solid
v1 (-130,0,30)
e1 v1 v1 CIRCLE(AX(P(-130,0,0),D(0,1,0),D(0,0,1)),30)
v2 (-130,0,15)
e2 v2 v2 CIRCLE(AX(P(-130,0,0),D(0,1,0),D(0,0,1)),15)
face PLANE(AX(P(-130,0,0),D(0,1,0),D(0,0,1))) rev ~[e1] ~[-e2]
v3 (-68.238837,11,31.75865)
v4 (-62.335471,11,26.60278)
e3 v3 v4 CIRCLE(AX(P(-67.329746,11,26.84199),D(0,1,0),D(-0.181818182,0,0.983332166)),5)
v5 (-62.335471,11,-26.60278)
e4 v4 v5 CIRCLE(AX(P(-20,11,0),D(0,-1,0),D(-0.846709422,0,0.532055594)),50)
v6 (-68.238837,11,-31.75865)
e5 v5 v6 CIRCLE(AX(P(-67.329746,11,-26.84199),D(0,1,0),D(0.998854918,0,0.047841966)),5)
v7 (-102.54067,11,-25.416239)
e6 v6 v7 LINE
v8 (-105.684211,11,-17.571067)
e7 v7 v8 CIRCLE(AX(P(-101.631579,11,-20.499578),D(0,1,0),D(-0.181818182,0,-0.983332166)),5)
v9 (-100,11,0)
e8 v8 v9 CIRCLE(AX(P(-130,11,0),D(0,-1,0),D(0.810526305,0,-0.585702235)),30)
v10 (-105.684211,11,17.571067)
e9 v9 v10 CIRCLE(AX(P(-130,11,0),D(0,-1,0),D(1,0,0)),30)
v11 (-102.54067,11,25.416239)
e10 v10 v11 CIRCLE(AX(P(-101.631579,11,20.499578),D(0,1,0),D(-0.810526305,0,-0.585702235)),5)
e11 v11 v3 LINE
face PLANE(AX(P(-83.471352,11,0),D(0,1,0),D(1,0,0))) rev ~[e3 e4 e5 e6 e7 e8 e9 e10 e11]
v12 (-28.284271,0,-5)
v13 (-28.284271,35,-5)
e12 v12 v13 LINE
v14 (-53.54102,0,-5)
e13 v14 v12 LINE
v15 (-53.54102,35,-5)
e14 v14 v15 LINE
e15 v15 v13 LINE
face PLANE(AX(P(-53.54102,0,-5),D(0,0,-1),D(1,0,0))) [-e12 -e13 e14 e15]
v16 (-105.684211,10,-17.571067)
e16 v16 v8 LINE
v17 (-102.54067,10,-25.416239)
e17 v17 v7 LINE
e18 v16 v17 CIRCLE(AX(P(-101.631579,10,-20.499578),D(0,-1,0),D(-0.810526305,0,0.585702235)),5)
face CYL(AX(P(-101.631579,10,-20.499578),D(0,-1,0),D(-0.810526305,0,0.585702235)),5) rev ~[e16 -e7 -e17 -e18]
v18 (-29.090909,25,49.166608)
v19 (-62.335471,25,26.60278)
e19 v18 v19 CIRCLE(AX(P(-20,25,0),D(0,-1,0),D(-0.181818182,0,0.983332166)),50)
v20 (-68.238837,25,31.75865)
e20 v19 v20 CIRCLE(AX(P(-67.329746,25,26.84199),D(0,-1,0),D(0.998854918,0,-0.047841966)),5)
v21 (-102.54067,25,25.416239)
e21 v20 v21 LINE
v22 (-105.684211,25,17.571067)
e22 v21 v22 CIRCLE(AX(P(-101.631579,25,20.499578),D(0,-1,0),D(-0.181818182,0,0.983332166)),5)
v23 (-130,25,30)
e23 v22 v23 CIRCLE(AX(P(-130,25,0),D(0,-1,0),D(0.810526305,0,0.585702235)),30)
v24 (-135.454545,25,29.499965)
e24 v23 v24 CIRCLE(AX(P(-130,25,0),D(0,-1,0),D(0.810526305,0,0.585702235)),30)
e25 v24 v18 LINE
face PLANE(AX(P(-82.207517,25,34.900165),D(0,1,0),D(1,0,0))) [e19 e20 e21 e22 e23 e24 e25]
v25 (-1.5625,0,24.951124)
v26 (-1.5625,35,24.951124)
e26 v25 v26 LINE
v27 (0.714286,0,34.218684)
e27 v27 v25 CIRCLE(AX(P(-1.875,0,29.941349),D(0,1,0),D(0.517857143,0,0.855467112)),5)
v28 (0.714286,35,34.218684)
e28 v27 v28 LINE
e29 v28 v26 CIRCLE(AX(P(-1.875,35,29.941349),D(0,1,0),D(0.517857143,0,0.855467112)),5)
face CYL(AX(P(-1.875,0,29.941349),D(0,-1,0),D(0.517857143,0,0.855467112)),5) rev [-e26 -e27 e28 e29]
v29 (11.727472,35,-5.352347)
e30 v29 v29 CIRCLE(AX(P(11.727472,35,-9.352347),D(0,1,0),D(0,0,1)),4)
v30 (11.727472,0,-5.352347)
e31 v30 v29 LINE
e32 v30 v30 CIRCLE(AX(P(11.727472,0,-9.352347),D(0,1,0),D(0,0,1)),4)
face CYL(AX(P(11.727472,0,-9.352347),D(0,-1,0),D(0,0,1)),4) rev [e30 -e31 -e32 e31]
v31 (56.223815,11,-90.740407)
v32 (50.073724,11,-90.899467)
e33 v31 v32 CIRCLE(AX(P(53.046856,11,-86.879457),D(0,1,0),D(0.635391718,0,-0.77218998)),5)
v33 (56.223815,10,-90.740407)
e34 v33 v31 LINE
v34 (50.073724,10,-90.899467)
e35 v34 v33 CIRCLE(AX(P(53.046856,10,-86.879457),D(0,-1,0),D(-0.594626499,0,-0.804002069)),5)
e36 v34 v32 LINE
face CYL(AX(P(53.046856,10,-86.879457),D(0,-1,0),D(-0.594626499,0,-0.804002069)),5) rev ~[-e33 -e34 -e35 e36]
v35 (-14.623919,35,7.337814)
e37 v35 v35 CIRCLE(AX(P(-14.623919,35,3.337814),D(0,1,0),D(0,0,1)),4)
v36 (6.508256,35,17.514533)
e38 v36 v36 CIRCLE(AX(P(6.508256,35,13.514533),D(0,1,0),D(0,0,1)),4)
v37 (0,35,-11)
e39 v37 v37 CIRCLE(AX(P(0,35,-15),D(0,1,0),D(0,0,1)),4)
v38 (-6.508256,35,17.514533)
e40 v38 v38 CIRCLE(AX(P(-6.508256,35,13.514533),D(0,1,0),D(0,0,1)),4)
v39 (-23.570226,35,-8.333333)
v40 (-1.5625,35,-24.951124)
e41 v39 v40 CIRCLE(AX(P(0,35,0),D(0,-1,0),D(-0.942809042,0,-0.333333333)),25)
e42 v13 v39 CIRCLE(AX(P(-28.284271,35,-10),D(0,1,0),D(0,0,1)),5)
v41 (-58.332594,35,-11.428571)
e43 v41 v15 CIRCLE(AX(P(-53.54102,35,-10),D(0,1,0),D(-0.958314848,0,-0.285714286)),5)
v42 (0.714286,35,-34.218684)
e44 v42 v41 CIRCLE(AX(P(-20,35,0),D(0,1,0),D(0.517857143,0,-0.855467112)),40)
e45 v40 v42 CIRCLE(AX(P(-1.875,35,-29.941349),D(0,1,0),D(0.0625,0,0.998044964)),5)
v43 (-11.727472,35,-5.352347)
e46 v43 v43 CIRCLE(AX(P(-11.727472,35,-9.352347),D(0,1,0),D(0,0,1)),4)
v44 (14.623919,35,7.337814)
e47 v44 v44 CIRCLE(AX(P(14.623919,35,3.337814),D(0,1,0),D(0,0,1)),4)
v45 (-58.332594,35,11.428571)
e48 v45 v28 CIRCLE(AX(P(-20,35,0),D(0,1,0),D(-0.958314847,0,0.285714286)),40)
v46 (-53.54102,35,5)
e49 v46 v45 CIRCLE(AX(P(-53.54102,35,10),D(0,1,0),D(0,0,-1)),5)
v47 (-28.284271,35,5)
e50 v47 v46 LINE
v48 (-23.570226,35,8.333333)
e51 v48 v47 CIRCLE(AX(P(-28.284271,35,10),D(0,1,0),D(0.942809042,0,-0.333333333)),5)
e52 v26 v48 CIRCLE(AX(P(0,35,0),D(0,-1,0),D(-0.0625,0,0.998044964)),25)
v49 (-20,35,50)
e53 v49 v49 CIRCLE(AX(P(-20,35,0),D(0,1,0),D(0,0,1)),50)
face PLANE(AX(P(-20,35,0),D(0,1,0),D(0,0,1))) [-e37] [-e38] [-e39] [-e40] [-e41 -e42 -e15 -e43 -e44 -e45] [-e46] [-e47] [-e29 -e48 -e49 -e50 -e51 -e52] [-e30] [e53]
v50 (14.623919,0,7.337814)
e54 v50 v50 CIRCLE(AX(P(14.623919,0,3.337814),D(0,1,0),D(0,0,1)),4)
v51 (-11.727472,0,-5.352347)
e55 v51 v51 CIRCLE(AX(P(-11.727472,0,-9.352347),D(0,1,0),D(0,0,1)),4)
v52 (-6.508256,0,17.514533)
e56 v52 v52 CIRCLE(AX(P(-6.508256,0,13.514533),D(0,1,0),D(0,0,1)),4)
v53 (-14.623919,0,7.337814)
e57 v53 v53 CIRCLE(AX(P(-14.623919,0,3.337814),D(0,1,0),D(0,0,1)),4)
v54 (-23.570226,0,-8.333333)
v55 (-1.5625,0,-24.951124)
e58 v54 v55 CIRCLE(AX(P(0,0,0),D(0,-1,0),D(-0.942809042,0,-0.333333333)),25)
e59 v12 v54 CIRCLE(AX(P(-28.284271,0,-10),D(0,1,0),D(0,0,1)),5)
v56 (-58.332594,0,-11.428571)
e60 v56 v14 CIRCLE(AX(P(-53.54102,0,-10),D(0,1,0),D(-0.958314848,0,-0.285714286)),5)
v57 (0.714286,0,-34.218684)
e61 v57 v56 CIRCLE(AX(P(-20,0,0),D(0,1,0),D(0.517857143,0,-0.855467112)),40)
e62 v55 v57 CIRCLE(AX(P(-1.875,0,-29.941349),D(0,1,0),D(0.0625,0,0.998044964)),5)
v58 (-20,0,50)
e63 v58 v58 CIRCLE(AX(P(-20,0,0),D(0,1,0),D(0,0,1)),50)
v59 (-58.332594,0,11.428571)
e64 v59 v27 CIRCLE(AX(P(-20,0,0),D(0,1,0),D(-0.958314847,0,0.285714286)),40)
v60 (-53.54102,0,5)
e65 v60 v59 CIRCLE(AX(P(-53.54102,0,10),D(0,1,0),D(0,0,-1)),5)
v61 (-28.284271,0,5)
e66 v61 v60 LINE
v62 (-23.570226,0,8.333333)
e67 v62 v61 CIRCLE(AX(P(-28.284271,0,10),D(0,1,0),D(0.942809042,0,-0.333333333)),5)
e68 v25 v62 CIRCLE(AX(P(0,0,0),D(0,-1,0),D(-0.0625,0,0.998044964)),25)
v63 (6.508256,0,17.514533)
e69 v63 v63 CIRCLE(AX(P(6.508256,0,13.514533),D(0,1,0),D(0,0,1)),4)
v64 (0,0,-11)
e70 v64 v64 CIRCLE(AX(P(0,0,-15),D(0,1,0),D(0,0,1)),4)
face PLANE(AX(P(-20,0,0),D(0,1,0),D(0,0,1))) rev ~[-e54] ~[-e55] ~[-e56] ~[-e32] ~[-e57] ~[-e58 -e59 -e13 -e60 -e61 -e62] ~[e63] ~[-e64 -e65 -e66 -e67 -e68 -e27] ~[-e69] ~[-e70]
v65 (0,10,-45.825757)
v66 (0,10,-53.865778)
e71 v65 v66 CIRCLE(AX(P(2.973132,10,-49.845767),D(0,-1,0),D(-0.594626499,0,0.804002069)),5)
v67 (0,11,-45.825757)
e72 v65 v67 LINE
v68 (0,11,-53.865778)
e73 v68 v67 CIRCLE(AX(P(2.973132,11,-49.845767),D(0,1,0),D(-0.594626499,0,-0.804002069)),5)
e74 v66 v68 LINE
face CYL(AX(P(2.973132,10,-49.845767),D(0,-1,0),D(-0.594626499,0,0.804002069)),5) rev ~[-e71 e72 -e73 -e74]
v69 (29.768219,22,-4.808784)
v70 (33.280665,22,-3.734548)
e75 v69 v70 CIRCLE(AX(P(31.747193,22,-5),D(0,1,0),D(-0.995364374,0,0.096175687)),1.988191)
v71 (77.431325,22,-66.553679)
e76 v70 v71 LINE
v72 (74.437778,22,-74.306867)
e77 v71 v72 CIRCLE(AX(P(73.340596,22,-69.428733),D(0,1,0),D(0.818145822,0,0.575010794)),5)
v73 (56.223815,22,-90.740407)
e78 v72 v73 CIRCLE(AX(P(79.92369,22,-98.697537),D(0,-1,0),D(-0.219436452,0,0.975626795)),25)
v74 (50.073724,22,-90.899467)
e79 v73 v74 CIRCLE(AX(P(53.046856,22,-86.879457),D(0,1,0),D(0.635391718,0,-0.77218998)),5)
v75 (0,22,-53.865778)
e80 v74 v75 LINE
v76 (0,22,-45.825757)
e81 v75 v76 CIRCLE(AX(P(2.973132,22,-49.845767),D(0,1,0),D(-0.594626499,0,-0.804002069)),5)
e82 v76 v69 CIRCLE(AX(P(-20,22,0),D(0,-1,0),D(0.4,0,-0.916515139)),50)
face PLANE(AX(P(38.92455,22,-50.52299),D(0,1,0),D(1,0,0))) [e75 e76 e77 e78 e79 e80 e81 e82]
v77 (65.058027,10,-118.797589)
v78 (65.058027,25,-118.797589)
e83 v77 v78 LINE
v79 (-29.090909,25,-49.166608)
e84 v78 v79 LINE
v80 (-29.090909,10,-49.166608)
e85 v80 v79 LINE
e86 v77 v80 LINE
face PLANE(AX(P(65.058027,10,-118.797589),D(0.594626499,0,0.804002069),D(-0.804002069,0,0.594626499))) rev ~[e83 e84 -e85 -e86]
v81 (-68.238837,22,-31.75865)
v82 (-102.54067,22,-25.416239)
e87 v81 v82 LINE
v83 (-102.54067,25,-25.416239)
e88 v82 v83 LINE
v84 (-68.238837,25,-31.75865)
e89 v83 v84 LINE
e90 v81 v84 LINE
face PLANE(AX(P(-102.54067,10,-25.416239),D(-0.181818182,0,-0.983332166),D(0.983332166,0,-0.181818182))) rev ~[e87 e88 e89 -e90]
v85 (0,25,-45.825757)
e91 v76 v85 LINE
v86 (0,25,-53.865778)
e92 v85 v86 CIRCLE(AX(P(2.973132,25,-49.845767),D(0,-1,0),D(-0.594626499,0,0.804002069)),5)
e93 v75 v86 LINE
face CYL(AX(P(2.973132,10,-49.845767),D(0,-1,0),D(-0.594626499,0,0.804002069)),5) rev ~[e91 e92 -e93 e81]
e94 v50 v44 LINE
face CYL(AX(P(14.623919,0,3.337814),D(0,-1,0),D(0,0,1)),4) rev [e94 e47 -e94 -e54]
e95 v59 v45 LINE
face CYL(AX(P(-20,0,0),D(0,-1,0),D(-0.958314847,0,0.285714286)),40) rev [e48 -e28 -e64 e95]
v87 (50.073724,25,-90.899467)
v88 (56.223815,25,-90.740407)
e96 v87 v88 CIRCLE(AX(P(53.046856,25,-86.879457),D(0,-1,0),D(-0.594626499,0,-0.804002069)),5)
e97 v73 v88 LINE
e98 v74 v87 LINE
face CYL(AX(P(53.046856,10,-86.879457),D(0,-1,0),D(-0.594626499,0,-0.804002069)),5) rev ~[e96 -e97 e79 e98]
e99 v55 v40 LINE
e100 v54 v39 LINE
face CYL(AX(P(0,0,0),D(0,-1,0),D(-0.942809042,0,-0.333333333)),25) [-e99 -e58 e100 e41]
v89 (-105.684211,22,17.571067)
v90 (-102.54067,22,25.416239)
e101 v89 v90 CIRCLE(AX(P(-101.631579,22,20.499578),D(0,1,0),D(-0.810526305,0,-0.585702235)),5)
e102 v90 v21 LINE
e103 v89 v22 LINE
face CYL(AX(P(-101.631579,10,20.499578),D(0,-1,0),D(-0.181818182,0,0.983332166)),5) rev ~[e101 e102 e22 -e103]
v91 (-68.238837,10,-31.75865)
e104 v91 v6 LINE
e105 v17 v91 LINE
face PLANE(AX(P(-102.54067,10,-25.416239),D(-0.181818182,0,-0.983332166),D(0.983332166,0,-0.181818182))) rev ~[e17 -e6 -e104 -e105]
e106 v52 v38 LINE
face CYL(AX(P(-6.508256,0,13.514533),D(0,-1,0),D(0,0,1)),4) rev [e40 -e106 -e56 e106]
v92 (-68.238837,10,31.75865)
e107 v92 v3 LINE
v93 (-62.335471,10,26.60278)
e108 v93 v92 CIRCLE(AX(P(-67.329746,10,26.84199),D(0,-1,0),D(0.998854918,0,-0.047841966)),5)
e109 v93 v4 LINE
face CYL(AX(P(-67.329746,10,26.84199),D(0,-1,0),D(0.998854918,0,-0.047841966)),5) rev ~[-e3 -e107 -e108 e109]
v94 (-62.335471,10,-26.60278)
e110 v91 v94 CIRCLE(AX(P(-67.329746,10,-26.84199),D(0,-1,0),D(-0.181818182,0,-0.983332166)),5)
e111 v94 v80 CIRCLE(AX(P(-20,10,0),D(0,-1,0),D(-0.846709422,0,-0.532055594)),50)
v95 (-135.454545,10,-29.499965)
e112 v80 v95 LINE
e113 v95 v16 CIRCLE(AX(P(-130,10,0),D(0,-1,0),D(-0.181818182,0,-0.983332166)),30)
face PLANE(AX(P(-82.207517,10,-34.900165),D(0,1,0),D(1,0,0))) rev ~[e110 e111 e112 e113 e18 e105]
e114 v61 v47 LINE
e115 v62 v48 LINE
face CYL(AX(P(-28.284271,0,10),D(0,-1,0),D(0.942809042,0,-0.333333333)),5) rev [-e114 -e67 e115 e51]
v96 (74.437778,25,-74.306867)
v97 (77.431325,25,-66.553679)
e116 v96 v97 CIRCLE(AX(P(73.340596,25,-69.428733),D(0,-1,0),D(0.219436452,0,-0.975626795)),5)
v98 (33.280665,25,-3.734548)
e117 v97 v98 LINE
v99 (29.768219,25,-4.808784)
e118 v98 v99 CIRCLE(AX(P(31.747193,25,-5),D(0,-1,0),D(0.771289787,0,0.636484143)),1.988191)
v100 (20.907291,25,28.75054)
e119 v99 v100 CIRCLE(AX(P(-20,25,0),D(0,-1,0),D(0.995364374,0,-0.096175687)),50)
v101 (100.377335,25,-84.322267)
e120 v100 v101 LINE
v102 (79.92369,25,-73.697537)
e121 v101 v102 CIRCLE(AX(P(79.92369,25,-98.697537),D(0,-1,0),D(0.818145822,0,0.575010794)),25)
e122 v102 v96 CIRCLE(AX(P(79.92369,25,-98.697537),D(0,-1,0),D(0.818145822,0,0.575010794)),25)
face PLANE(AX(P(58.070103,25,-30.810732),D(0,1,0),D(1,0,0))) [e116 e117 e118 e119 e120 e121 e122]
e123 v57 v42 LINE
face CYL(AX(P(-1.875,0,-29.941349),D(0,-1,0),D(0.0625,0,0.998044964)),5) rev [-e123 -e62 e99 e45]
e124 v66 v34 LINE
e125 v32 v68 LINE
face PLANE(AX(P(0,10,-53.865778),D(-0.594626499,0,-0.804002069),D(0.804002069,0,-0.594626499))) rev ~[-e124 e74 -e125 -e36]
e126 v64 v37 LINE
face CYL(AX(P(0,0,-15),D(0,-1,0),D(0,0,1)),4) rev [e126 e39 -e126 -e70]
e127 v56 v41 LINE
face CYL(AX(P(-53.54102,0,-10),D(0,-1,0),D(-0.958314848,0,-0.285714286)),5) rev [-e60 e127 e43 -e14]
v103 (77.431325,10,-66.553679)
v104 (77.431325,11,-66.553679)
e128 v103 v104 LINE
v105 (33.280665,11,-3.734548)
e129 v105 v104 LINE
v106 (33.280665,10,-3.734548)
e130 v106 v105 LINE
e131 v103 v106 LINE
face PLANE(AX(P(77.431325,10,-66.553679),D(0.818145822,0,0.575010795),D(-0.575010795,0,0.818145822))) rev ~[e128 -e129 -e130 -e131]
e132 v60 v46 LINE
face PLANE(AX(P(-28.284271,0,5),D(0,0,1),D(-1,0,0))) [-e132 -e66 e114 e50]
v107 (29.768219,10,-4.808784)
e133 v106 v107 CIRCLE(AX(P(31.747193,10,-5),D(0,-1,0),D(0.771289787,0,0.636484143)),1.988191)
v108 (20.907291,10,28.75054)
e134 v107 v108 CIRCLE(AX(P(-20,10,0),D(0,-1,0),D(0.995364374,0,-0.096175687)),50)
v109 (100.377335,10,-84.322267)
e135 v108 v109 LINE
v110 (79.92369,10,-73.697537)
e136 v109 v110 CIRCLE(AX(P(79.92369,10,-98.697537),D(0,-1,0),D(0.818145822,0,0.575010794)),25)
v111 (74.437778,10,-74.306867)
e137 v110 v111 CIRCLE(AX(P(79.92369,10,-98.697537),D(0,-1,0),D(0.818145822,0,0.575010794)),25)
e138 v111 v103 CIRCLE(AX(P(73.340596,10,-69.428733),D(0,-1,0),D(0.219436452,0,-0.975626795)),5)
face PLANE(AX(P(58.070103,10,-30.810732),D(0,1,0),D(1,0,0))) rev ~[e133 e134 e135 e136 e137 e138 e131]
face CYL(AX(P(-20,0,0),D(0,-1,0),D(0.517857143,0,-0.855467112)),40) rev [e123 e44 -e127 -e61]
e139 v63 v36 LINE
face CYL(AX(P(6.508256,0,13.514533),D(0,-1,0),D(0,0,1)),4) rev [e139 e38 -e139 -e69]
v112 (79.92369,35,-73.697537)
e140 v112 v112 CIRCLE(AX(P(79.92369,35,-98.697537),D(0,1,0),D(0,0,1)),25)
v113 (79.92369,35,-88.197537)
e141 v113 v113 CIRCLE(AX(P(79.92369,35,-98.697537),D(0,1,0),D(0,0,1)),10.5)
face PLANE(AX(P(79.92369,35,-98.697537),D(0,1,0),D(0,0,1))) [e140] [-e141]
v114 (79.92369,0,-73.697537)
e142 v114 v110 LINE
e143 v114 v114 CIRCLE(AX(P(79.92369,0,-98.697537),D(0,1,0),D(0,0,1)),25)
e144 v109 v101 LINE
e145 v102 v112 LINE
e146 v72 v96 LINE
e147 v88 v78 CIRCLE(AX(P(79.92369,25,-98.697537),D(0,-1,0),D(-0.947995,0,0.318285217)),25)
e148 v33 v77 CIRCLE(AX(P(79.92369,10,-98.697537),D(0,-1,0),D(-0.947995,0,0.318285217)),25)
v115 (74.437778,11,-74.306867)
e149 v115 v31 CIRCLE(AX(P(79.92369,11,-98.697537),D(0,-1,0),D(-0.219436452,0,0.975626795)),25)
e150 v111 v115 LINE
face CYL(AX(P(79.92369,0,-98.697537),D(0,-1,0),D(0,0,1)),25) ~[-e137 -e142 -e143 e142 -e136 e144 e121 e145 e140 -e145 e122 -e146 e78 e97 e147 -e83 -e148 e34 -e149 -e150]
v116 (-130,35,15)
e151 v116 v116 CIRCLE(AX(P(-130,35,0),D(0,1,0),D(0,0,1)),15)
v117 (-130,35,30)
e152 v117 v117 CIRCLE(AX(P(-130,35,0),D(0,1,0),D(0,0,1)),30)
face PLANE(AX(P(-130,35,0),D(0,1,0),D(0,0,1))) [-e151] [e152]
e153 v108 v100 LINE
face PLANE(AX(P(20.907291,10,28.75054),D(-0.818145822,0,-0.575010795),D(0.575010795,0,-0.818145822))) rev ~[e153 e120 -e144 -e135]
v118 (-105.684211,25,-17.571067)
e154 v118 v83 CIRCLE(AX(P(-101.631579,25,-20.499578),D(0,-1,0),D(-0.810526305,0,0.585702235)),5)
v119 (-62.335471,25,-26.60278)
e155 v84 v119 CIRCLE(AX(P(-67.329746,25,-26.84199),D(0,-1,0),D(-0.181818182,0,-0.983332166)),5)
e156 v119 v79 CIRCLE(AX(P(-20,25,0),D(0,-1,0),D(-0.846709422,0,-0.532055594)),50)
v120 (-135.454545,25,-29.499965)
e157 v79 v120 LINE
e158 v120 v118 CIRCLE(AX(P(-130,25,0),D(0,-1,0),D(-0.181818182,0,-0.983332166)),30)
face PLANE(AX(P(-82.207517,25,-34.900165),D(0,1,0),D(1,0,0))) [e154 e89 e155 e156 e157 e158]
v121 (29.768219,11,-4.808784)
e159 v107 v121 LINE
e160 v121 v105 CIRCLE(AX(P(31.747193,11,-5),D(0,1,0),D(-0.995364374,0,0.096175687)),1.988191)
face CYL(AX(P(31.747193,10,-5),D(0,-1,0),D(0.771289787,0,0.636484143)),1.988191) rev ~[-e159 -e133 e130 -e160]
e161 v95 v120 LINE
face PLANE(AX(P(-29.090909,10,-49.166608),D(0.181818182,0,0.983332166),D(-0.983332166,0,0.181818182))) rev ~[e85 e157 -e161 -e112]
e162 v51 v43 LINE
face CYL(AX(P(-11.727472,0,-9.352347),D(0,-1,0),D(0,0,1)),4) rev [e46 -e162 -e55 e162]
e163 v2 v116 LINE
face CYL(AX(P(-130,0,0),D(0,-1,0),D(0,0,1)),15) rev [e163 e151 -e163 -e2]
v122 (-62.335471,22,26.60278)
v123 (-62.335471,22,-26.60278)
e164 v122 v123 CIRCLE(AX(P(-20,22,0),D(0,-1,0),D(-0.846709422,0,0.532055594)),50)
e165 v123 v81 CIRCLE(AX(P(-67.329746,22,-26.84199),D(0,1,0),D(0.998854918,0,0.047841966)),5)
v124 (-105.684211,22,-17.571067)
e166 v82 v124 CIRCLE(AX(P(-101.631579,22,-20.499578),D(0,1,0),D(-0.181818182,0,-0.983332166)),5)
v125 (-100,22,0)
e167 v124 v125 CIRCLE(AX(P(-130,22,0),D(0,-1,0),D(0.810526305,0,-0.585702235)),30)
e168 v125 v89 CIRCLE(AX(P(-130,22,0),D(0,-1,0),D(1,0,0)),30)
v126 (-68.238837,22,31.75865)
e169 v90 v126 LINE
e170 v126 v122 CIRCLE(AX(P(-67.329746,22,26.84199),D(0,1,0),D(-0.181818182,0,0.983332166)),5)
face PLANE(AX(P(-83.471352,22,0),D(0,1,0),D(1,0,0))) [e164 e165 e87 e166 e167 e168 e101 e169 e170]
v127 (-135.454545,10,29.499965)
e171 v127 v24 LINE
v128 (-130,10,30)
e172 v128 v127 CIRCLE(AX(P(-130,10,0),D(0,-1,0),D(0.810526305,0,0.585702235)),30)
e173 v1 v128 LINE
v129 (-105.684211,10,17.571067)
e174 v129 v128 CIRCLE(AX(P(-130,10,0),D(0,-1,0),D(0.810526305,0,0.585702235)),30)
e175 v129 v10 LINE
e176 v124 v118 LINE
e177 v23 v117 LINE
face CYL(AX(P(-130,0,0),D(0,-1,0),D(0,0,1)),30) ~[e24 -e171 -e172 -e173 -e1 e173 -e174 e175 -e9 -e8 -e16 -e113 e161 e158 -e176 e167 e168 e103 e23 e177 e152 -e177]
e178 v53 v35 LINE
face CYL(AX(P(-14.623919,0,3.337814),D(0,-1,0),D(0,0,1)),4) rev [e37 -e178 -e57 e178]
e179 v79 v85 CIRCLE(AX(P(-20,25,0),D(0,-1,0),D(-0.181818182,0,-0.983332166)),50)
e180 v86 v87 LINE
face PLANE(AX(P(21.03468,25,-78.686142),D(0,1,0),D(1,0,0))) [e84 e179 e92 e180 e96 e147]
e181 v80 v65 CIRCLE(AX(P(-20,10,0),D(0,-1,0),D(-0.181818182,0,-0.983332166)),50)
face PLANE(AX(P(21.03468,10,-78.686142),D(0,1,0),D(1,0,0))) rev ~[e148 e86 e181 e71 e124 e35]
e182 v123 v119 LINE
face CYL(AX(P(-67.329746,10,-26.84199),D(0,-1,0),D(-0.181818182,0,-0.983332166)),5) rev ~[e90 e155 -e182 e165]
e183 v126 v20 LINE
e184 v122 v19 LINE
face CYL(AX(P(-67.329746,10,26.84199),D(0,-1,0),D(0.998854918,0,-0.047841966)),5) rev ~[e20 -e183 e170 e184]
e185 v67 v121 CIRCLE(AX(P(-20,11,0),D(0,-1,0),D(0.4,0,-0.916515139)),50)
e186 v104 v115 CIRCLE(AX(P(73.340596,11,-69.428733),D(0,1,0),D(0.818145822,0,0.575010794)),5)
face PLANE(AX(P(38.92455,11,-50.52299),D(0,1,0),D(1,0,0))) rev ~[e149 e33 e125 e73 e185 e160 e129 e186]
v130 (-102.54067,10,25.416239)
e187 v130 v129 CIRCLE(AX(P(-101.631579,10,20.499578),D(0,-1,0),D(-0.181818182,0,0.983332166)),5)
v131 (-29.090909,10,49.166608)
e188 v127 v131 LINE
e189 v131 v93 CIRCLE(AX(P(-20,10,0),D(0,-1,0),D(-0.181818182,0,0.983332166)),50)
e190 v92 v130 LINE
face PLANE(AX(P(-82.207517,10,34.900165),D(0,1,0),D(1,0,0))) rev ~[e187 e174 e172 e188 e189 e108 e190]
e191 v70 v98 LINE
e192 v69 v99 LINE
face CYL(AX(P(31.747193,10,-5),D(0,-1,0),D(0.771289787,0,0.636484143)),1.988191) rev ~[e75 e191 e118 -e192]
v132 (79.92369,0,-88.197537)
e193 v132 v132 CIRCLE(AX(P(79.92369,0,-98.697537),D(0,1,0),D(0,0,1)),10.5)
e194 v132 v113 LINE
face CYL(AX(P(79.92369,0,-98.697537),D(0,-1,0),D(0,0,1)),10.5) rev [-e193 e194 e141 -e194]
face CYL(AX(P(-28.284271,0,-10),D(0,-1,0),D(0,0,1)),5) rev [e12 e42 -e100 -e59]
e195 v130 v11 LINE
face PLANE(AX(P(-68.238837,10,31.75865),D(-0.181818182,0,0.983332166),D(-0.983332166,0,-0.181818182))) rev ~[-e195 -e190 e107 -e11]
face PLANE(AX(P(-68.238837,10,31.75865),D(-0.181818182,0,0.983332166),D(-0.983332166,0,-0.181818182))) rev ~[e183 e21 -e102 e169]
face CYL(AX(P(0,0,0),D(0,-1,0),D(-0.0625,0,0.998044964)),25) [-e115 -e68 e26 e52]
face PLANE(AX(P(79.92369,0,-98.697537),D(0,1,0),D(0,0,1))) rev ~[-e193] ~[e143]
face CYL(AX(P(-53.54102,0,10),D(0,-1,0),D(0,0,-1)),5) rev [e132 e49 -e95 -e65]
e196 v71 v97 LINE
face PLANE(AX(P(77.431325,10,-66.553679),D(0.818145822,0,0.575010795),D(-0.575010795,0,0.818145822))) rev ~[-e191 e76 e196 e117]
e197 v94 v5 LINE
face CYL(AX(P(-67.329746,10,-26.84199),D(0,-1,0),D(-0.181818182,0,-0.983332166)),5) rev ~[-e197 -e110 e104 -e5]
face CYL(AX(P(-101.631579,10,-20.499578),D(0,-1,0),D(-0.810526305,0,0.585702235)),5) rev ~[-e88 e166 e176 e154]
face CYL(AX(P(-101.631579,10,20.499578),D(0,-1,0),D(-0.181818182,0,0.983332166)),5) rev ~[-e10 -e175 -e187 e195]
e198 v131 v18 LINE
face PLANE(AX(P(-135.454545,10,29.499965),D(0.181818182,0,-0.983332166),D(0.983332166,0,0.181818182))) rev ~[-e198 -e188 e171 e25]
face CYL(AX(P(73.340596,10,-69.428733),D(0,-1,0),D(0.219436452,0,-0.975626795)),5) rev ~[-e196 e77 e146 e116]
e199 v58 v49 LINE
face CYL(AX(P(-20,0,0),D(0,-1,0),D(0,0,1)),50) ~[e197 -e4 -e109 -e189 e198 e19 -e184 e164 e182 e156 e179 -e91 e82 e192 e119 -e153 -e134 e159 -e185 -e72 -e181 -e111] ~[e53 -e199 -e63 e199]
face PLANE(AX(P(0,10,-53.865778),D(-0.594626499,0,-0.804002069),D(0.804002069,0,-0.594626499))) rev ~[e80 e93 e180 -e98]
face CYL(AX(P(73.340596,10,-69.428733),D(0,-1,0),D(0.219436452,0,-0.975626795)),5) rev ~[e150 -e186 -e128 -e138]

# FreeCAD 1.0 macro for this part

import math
import FreeCAD as App
import Part
import Sketcher

doc = App.newDocument("Part")
body = doc.addObject("PartDesign::Body", "Body")

# Sketch on XZ plane
sketch1 = doc.addObject("Sketcher::SketchObject", "Sketch")
body.addObject(sketch1)
sketch1.AttachmentSupport = (doc.XZ_Plane, [""])
sketch1.MapMode = "FlatFace"
sketch1.addGeometry([
    Part.Circle(App.Vector(0, 0, 0), App.Vector(0, 0, 1), 22),  # 0
    Part.Circle(App.Vector(-11.7, -9.4, 0), App.Vector(0, 0, 1), 4),  # 1
    Part.Circle(App.Vector(0, -15, 0), App.Vector(0, 0, 1), 4),  # 2
    Part.Circle(App.Vector(-14.6, 3.3, 0), App.Vector(0, 0, 1), 4),  # 3
    Part.Circle(App.Vector(-6.5, 13.5, 0), App.Vector(0, 0, 1), 4),  # 4
    Part.Circle(App.Vector(11.7, -9.4, 0), App.Vector(0, 0, 1), 4),  # 5
    Part.Circle(App.Vector(6.5, 13.5, 0), App.Vector(0, 0, 1), 4),  # 6
    Part.Circle(App.Vector(14.6, 3.3, 0), App.Vector(0, 0, 1), 4),  # 7
], False)
sketch1.addConstraint([
    Sketcher.Constraint("Coincident", 0, 3, -1, 1),
    Sketcher.Constraint("Equal", 1, 2),
    Sketcher.Constraint("Equal", 2, 3),
    Sketcher.Constraint("Equal", 3, 4),
    Sketcher.Constraint("Equal", 4, 5),
    Sketcher.Constraint("Equal", 5, 6),
    Sketcher.Constraint("Equal", 6, 7),
    Sketcher.Constraint("Symmetric", 1, 3, 5, 3, -2),
    Sketcher.Constraint("Symmetric", 4, 3, 6, 3, -2),
    Sketcher.Constraint("Symmetric", 3, 3, 7, 3, -2),
    Sketcher.Constraint("PointOnObject", 2, 3, -2),
    Sketcher.Constraint("Diameter", 0, 44.0),
    Sketcher.Constraint("Diameter", 1, 8.0),
    Sketcher.Constraint("DistanceY", 2, 3, -1, 1, 15.0),
    Sketcher.Constraint("DistanceX", 3, 3, -1, 1, 14.623919),
    Sketcher.Constraint("DistanceY", 1, 3, 3, 3, 12.690161),
    Sketcher.Constraint("DistanceY", 3, 3, 4, 3, 10.176719),
    Sketcher.Constraint("DistanceX", 3, 3, 5, 3, 26.351391),
    Sketcher.Constraint("DistanceX", 4, 3, 5, 3, 18.235728),
    Sketcher.Constraint("DistanceY", 1, 3, -1, 1, 9.352347),
])
pad1 = doc.addObject("PartDesign::Pad", "Pad")
body.addObject(pad1)
pad1.Profile = sketch1
pad1.Length = 35
pad1.Reversed = True
body2 = doc.addObject("PartDesign::Body", "Body001")

# Sketch on XZ plane
sketch2 = doc.addObject("Sketcher::SketchObject", "Sketch001")
body2.addObject(sketch2)
sketch2.AttachmentSupport = (doc.getObject("XZ_Plane001"), [""])
sketch2.MapMode = "FlatFace"
sketch2.AttachmentOffset = App.Placement(App.Vector(0, 0, -10), App.Rotation())
sketch2.addGeometry([
    Part.LineSegment(App.Vector(-29.1, -49.2, 0), App.Vector(-135.5, -29.5, 0)),  # 0
    Part.ArcOfCircle(Part.Circle(App.Vector(-130, 0, 0), App.Vector(0, 0, 1), 30), math.radians(-100), math.radians(-36)),  # 1
    Part.ArcOfCircle(Part.Circle(App.Vector(-101.6, -20.5, 0), App.Vector(0, 0, 1), 5), math.radians(144), math.radians(260)),  # 2
    Part.LineSegment(App.Vector(-102.5, -25.4, 0), App.Vector(-68.2, -31.8, 0)),  # 3
    Part.ArcOfCircle(Part.Circle(App.Vector(-67.3, -26.8, 0), App.Vector(0, 0, 1), 5), math.radians(-100), math.radians(3)),  # 4
    Part.ArcOfCircle(Part.Circle(App.Vector(-20, 0, 0), App.Vector(0, 0, 1), 50), math.radians(-148), math.radians(-100)),  # 5
], False)
sketch2.addConstraint([
    Sketcher.Constraint("Tangent", 0, 2, 1, 1),
    Sketcher.Constraint("Tangent", 1, 2, 2, 1),
    Sketcher.Constraint("Tangent", 2, 2, 3, 1),
    Sketcher.Constraint("Tangent", 3, 2, 4, 1),
    Sketcher.Constraint("Coincident", 4, 2, 5, 1),
    Sketcher.Constraint("Tangent", 5, 2, 0, 1),
    Sketcher.Constraint("Equal", 2, 4),
    Sketcher.Constraint("PointOnObject", 1, 3, -1),
    Sketcher.Constraint("PointOnObject", 5, 3, -1),
    Sketcher.Constraint("Parallel", 0, 3),
    Sketcher.Constraint("Radius", 1, 30.0),
    Sketcher.Constraint("Radius", 2, 5.0),
    Sketcher.Constraint("Radius", 5, 50.0),
    Sketcher.Constraint("DistanceX", 1, 3, -1, 1, 130.0),
    Sketcher.Constraint("DistanceX", 5, 3, -1, 1, 20.0),
    Sketcher.Constraint("DistanceX", 0, 2, 4, 3, 68.1248),
    Sketcher.Constraint("DistanceY", 4, 2, 2, 3, 6.103201),
])
pad2 = doc.addObject("PartDesign::Pad", "Pad001")
body2.addObject(pad2)
pad2.Profile = sketch2
pad2.Length = 15
pad2.Reversed = True
body3 = doc.addObject("PartDesign::Body", "Body002")

# Sketch on XZ plane
sketch3 = doc.addObject("Sketcher::SketchObject", "Sketch002")
body3.addObject(sketch3)
sketch3.AttachmentSupport = (doc.getObject("XZ_Plane002"), [""])
sketch3.MapMode = "FlatFace"
sketch3.AttachmentOffset = App.Placement(App.Vector(0, 0, -10), App.Rotation())
sketch3.addGeometry([
    Part.LineSegment(App.Vector(65.1, -118.8, 0), App.Vector(-29.1, -49.2, 0)),  # 0
    Part.ArcOfCircle(Part.Circle(App.Vector(-20, 0, 0), App.Vector(0, 0, 1), 50), math.radians(-100), math.radians(-66)),  # 1
    Part.ArcOfCircle(Part.Circle(App.Vector(3, -49.8, 0), App.Vector(0, 0, 1), 5), math.radians(126), math.radians(234)),  # 2
    Part.LineSegment(App.Vector(0, -53.9, 0), App.Vector(50.1, -90.9, 0)),  # 3
    Part.ArcOfCircle(Part.Circle(App.Vector(53, -86.9, 0), App.Vector(0, 0, 1), 5), math.radians(-126), math.radians(-51)),  # 4
    Part.ArcOfCircle(Part.Circle(App.Vector(79.9, -98.7, 0), App.Vector(0, 0, 1), 25), math.radians(161), math.radians(234)),  # 5
], False)
sketch3.addConstraint([
    Sketcher.Constraint("Coincident", 0, 2, 1, 1),
    Sketcher.Constraint("Coincident", 1, 2, 2, 1),
    Sketcher.Constraint("Tangent", 2, 2, 3, 1),
    Sketcher.Constraint("Tangent", 3, 2, 4, 1),
    Sketcher.Constraint("Coincident", 4, 2, 5, 1),
    Sketcher.Constraint("Tangent", 5, 2, 0, 1),
    Sketcher.Constraint("Equal", 2, 4),
    Sketcher.Constraint("PointOnObject", 1, 3, -1),
    Sketcher.Constraint("PointOnObject", 1, 2, -2),
    Sketcher.Constraint("PointOnObject", 2, 2, -2),
    Sketcher.Constraint("Parallel", 0, 3),
    Sketcher.Constraint("Radius", 1, 50.0),
    Sketcher.Constraint("Radius", 2, 5.0),
    Sketcher.Constraint("Radius", 5, 25.0),
    Sketcher.Constraint("DistanceX", 1, 3, -1, 1, 20.0),
    Sketcher.Constraint("DistanceX", 0, 2, 5, 3, 109.014599),
    Sketcher.Constraint("DistanceY", 4, 3, 1, 2, 41.0537),
    Sketcher.Constraint("Distance", 3, 62.28059),
    Sketcher.Constraint("DistanceX", -1, 1, 5, 3, 79.92369),
])
pad3 = doc.addObject("PartDesign::Pad", "Pad002")
body3.addObject(pad3)
pad3.Profile = sketch3
pad3.Length = 15
pad3.Reversed = True
body4 = doc.addObject("PartDesign::Body", "Body003")

# Sketch on XZ plane
sketch4 = doc.addObject("Sketcher::SketchObject", "Sketch003")
body4.addObject(sketch4)
sketch4.AttachmentSupport = (doc.getObject("XZ_Plane003"), [""])
sketch4.MapMode = "FlatFace"
sketch4.AttachmentOffset = App.Placement(App.Vector(0, 0, -10), App.Rotation())
sketch4.addGeometry([
    Part.ArcOfCircle(Part.Circle(App.Vector(-130, 0, 0), App.Vector(0, 0, 1), 30), math.radians(36), math.radians(100)),  # 0
    Part.LineSegment(App.Vector(-135.5, 29.5, 0), App.Vector(-29.1, 49.2, 0)),  # 1
    Part.ArcOfCircle(Part.Circle(App.Vector(-20, 0, 0), App.Vector(0, 0, 1), 50), math.radians(100), math.radians(148)),  # 2
    Part.ArcOfCircle(Part.Circle(App.Vector(-67.3, 26.8, 0), App.Vector(0, 0, 1), 5), math.radians(-3), math.radians(100)),  # 3
    Part.LineSegment(App.Vector(-68.2, 31.8, 0), App.Vector(-102.5, 25.4, 0)),  # 4
    Part.ArcOfCircle(Part.Circle(App.Vector(-101.6, 20.5, 0), App.Vector(0, 0, 1), 5), math.radians(100), math.radians(216)),  # 5
], False)
sketch4.addConstraint([
    Sketcher.Constraint("Tangent", 0, 2, 1, 1),
    Sketcher.Constraint("Tangent", 1, 2, 2, 1),
    Sketcher.Constraint("Coincident", 2, 2, 3, 1),
    Sketcher.Constraint("Tangent", 3, 2, 4, 1),
    Sketcher.Constraint("Tangent", 4, 2, 5, 1),
    Sketcher.Constraint("Tangent", 5, 2, 0, 1),
    Sketcher.Constraint("Equal", 3, 5),
    Sketcher.Constraint("PointOnObject", 0, 3, -1),
    Sketcher.Constraint("PointOnObject", 2, 3, -1),
    Sketcher.Constraint("Parallel", 1, 4),
    Sketcher.Constraint("Radius", 0, 30.0),
    Sketcher.Constraint("Radius", 2, 50.0),
    Sketcher.Constraint("Radius", 3, 5.0),
    Sketcher.Constraint("DistanceX", 0, 3, -1, 1, 130.0),
    Sketcher.Constraint("DistanceX", 2, 3, -1, 1, 20.0),
    Sketcher.Constraint("DistanceX", 0, 2, 3, 3, 68.1248),
    Sketcher.Constraint("DistanceY", 5, 3, 2, 2, 6.103201),
])
pad4 = doc.addObject("PartDesign::Pad", "Pad003")
body4.addObject(pad4)
pad4.Profile = sketch4
pad4.Length = 15
pad4.Reversed = True
body5 = doc.addObject("PartDesign::Body", "Body004")

# Sketch on XZ plane
sketch5 = doc.addObject("Sketcher::SketchObject", "Sketch004")
body5.addObject(sketch5)
sketch5.AttachmentSupport = (doc.getObject("XZ_Plane004"), [""])
sketch5.MapMode = "FlatFace"
sketch5.AttachmentOffset = App.Placement(App.Vector(0, 0, -10), App.Rotation())
sketch5.addGeometry([
    Part.ArcOfCircle(Part.Circle(App.Vector(31.7, -5, 0), App.Vector(0, 0, 1), 2), math.radians(40), math.radians(174)),  # 0
    Part.ArcOfCircle(Part.Circle(App.Vector(-20, 0, 0), App.Vector(0, 0, 1), 50), math.radians(-6), math.radians(35)),  # 1
    Part.LineSegment(App.Vector(20.9, 28.8, 0), App.Vector(100.4, -84.3, 0)),  # 2
    Part.ArcOfCircle(Part.Circle(App.Vector(79.9, -98.7, 0), App.Vector(0, 0, 1), 25), math.radians(35), math.radians(103)),  # 3
    Part.ArcOfCircle(Part.Circle(App.Vector(73.3, -69.4, 0), App.Vector(0, 0, 1), 5), math.radians(-77), math.radians(35)),  # 4
    Part.LineSegment(App.Vector(77.4, -66.6, 0), App.Vector(33.3, -3.7, 0)),  # 5
], False)
sketch5.addConstraint([
    Sketcher.Constraint("Tangent", 0, 2, 1, 1),
    Sketcher.Constraint("Tangent", 1, 2, 2, 1),
    Sketcher.Constraint("Tangent", 2, 2, 3, 1),
    Sketcher.Constraint("Tangent", 3, 2, 4, 1),
    Sketcher.Constraint("Tangent", 4, 2, 5, 1),
    Sketcher.Constraint("Coincident", 5, 2, 0, 1),
    Sketcher.Constraint("PointOnObject", 1, 3, -1),
    Sketcher.Constraint("Parallel", 2, 5),
    Sketcher.Constraint("Radius", 1, 50.0),
    Sketcher.Constraint("Radius", 3, 25.0),
    Sketcher.Constraint("Radius", 4, 5.0),
    Sketcher.Constraint("DistanceY", 0, 3, -1, 1, 5.0),
    Sketcher.Constraint("DistanceX", 1, 3, -1, 1, 20.0),
    Sketcher.Constraint("Radius", 0, 1.988191),
    Sketcher.Constraint("DistanceX", 1, 2, 3, 3, 59.016399),
    Sketcher.Constraint("DistanceY", 2, 2, 3, 2, 10.0154),
    Sketcher.Constraint("DistanceX", -1, 1, 3, 3, 79.92369),
])
pad5 = doc.addObject("PartDesign::Pad", "Pad004")
body5.addObject(pad5)
pad5.Profile = sketch5
pad5.Length = 15
pad5.Reversed = True
body2.AllowCompound = True
doc.recompute()

boolean = doc.addObject("PartDesign::Boolean", "Boolean")
body2.addObject(boolean)
boolean.Type = "Fuse"
boolean.addObjects([body3])
doc.recompute()

boolean2 = doc.addObject("PartDesign::Boolean", "Boolean001")
body2.addObject(boolean2)
boolean2.Type = "Fuse"
boolean2.addObjects([body4])
doc.recompute()

boolean3 = doc.addObject("PartDesign::Boolean", "Boolean002")
body2.addObject(boolean3)
boolean3.Type = "Fuse"
boolean3.addObjects([body5])

# Sketch on XZ plane
sketch6 = doc.addObject("Sketcher::SketchObject", "Sketch005")
body2.addObject(sketch6)
sketch6.AttachmentSupport = (doc.getObject("XZ_Plane001"), [""])
sketch6.MapMode = "FlatFace"
sketch6.addGeometry([
    Part.Circle(App.Vector(-130, 0, 0), App.Vector(0, 0, 1), 30),
    Part.Circle(App.Vector(-130, 0, 0), App.Vector(0, 0, 1), 15),
    Part.Circle(App.Vector(80, -99, 0), App.Vector(0, 0, 1), 25),
    Part.Circle(App.Vector(80, -99, 0), App.Vector(0, 0, 1), 10),
], False)
sketch6.addConstraint([
    Sketcher.Constraint("Coincident", 1, 3, 0, 3),
    Sketcher.Constraint("Coincident", 3, 3, 2, 3),
    Sketcher.Constraint("PointOnObject", 0, 3, -1),
    Sketcher.Constraint("Diameter", 0, 60.0),
    Sketcher.Constraint("Diameter", 1, 30.0),
    Sketcher.Constraint("Diameter", 2, 50.0),
    Sketcher.Constraint("Diameter", 3, 21.0),
    Sketcher.Constraint("DistanceX", 0, 3, -1, 1, 130.0),
    Sketcher.Constraint("DistanceX", -1, 1, 2, 3, 79.92369),
    Sketcher.Constraint("DistanceY", 2, 3, -1, 1, 98.697537),
])
pad6 = doc.addObject("PartDesign::Pad", "Pad005")
body2.addObject(pad6)
pad6.Profile = sketch6
pad6.Length = 35
pad6.Reversed = True

# Sketch on XZ plane
sketch7 = doc.addObject("Sketcher::SketchObject", "Sketch006")
body2.addObject(sketch7)
sketch7.AttachmentSupport = (doc.getObject("XZ_Plane001"), [""])
sketch7.MapMode = "FlatFace"
sketch7.AttachmentOffset = App.Placement(App.Vector(0, 0, -11), App.Rotation())
sketch7.addGeometry([
    Part.ArcOfCircle(Part.Circle(App.Vector(-101.631579, -20.499578, 0), App.Vector(0, 0, 1), 5), math.radians(144.147385), math.radians(259.524318)),  # 0
    Part.ArcOfCircle(Part.Circle(App.Vector(-130, 0, 0), App.Vector(0, 0, 1), 30), math.radians(-35.852615), math.radians(0)),  # 1
    Part.ArcOfCircle(Part.Circle(App.Vector(-130, 0, 0), App.Vector(0, 0, 1), 30), math.radians(0), math.radians(35.852615)),  # 2
    Part.ArcOfCircle(Part.Circle(App.Vector(-101.631579, 20.499578, 0), App.Vector(0, 0, 1), 5), math.radians(100.475682), math.radians(215.852615)),  # 3
    Part.LineSegment(App.Vector(-102.54067, 25.416239, 0), App.Vector(-68.238837, 31.75865, 0)),  # 4
    Part.ArcOfCircle(Part.Circle(App.Vector(-67.329746, 26.84199, 0), App.Vector(0, 0, 1), 5), math.radians(-2.74219), math.radians(100.475682)),  # 5
    Part.ArcOfCircle(Part.Circle(App.Vector(-20, 0, 0), App.Vector(0, 0, 1), 50), math.radians(147.855551), math.radians(212.144449)),  # 6
    Part.ArcOfCircle(Part.Circle(App.Vector(-67.329746, -26.84199, 0), App.Vector(0, 0, 1), 5), math.radians(-100.475682), math.radians(2.74219)),  # 7
    Part.LineSegment(App.Vector(-68.238837, -31.75865, 0), App.Vector(-102.54067, -25.416239, 0)),  # 8
    Part.ArcOfCircle(Part.Circle(App.Vector(2.973132, -49.845767, 0), App.Vector(0, 0, 1), 5), math.radians(126.486011), math.radians(233.513989)),  # 9
    Part.ArcOfCircle(Part.Circle(App.Vector(-20, 0, 0), App.Vector(0, 0, 1), 50), math.radians(-66.421822), math.radians(-5.518992)),  # 10
    Part.ArcOfCircle(Part.Circle(App.Vector(31.747193, -5, 0), App.Vector(0, 0, 1), 1.988191), math.radians(39.530148), math.radians(174.481008)),  # 11
    Part.LineSegment(App.Vector(33.280665, -3.734548, 0), App.Vector(77.431325, -66.553679, 0)),  # 12
    Part.ArcOfCircle(Part.Circle(App.Vector(73.340596, -69.428733, 0), App.Vector(0, 0, 1), 5), math.radians(-77.324065), math.radians(35.100388)),  # 13
    Part.ArcOfCircle(Part.Circle(App.Vector(79.92369, -98.697537, 0), App.Vector(0, 0, 1), 25), math.radians(102.675935), math.radians(161.440746)),  # 14
    Part.ArcOfCircle(Part.Circle(App.Vector(53.046856, -86.879457, 0), App.Vector(0, 0, 1), 5), math.radians(-126.486011), math.radians(-50.550956)),  # 15
    Part.LineSegment(App.Vector(50.073724, -90.899467, 0), App.Vector(0, -53.865778, 0)),  # 16
], False)
sketch7.addConstraint([
    Sketcher.Constraint("Coincident", 0, 1, 1, 1),
    Sketcher.Constraint("Coincident", 1, 2, 2, 1),
    Sketcher.Constraint("Coincident", 2, 2, 3, 2),
    Sketcher.Constraint("Coincident", 3, 1, 4, 1),
    Sketcher.Constraint("Coincident", 4, 2, 5, 2),
    Sketcher.Constraint("Coincident", 5, 1, 6, 1),
    Sketcher.Constraint("Coincident", 6, 2, 7, 2),
    Sketcher.Constraint("Coincident", 7, 1, 8, 1),
    Sketcher.Constraint("Coincident", 8, 2, 0, 2),
    Sketcher.Constraint("Coincident", 9, 1, 10, 1),
    Sketcher.Constraint("Coincident", 10, 2, 11, 2),
    Sketcher.Constraint("Coincident", 11, 1, 12, 1),
    Sketcher.Constraint("Coincident", 12, 2, 13, 2),
    Sketcher.Constraint("Coincident", 13, 1, 14, 1),
    Sketcher.Constraint("Coincident", 14, 2, 15, 2),
    Sketcher.Constraint("Coincident", 15, 1, 16, 1),
    Sketcher.Constraint("Coincident", 16, 2, 9, 2),
    Sketcher.Constraint("Coincident", 2, 3, 1, 3),
    Sketcher.Constraint("Coincident", 10, 3, 6, 3),
    Sketcher.Constraint("PointOnObject", 1, 3, -1),
    Sketcher.Constraint("PointOnObject", 6, 3, -1),
    Sketcher.Constraint("PointOnObject", 1, 2, -1),
    Sketcher.Constraint("PointOnObject", 9, 1, -2),
    Sketcher.Constraint("PointOnObject", 16, 2, -2),
    Sketcher.Constraint("Radius", 0, 5.0),
    Sketcher.Constraint("Radius", 1, 30.0),
    Sketcher.Constraint("Radius", 3, 5.0),
    Sketcher.Constraint("Radius", 5, 5.0),
    Sketcher.Constraint("Radius", 6, 50.0),
    Sketcher.Constraint("Radius", 7, 5.0),
    Sketcher.Constraint("Radius", 9, 5.0),
    Sketcher.Constraint("Radius", 10, 50.0),
    Sketcher.Constraint("Radius", 13, 5.0),
    Sketcher.Constraint("Radius", 14, 25.0),
    Sketcher.Constraint("Radius", 15, 5.0),
    Sketcher.Constraint("DistanceX", 1, 3, -1, 1, 130.0),
    Sketcher.Constraint("DistanceX", 6, 3, -1, 1, 20.0),
    Sketcher.Constraint("DistanceY", 11, 3, -1, 1, 5.0),
    Sketcher.Constraint("Radius", 11, 1.988191),
    Sketcher.Constraint("DistanceY", 3, 3, 5, 1, 6.103201),
    Sketcher.Constraint("DistanceX", 3, 1, 5, 1, 40.205199),
    Sketcher.Constraint("DistanceY", 6, 2, 0, 3, 6.103201),
    Sketcher.Constraint("DistanceY", 13, 1, 9, 3, 24.4611),
    Sketcher.Constraint("DistanceY", 15, 1, 13, 1, 16.5926),
    Sketcher.Constraint("Distance", 16, 62.28059),
    Sketcher.Constraint("DistanceX", 0, 3, -1, 1, 101.631579),
    Sketcher.Constraint("DistanceX", 3, 3, -1, 1, 101.631579),
    Sketcher.Constraint("DistanceY", -1, 1, 5, 3, 26.84199),
    Sketcher.Constraint("DistanceY", 7, 3, -1, 1, 26.84199),
    Sketcher.Constraint("DistanceX", -1, 1, 14, 3, 79.92369),
    Sketcher.Constraint("DistanceX", 0, 1, -1, 1, 105.684211),
    Sketcher.Constraint("DistanceX", 2, 2, -1, 1, 105.684211),
    Sketcher.Constraint("DistanceY", -1, 1, 4, 2, 31.75865),
    Sketcher.Constraint("DistanceY", 7, 1, -1, 1, 31.75865),
    Sketcher.Constraint("DistanceX", 8, 2, -1, 1, 102.54067),
    Sketcher.Constraint("DistanceX", -1, 1, 10, 2, 29.768219),
    Sketcher.Constraint("DistanceY", 12, 2, -1, 1, 66.553679),
    Sketcher.Constraint("DistanceX", -1, 1, 13, 1, 74.437778),
    Sketcher.Constraint("DistanceX", 7, 3, 9, 3, 70.302878),
    Sketcher.Constraint("DistanceX", 7, 3, 13, 3, 140.670342),
    Sketcher.Constraint("DistanceX", 15, 3, 13, 3, 20.29374),
    Sketcher.Constraint("DistanceX", 11, 3, 11, 1, 1.533471),
])
pad7 = doc.addObject("PartDesign::Pad", "Pad006")
body2.addObject(pad7)
pad7.Profile = sketch7
pad7.Length = 11
pad7.Reversed = True
body.AllowCompound = True
doc.recompute()

boolean4 = doc.addObject("PartDesign::Boolean", "Boolean003")
body.addObject(boolean4)
boolean4.Type = "Fuse"
boolean4.addObjects([body2])

# Sketch on XZ plane
sketch8 = doc.addObject("Sketcher::SketchObject", "Sketch007")
body.addObject(sketch8)
sketch8.AttachmentSupport = (doc.XZ_Plane, [""])
sketch8.MapMode = "FlatFace"
sketch8.addGeometry([
    Part.Circle(App.Vector(-20, 0, 0), App.Vector(0, 0, 1), 50),  # 0
    Part.ArcOfCircle(Part.Circle(App.Vector(-20, 0, 0), App.Vector(0, 0, 1), 40), math.radians(-163), math.radians(-59)),  # 1
    Part.ArcOfCircle(Part.Circle(App.Vector(-1.9, -29.9, 0), App.Vector(0, 0, 1), 5), math.radians(-59), math.radians(86)),  # 2
    Part.ArcOfCircle(Part.Circle(App.Vector(0, 0, 0), App.Vector(0, 0, 1), 25), math.radians(-161), math.radians(-94)),  # 3
    Part.ArcOfCircle(Part.Circle(App.Vector(-28.3, -10, 0), App.Vector(0, 0, 1), 5), math.radians(19), math.radians(90)),  # 4
    Part.LineSegment(App.Vector(-28.3, -5, 0), App.Vector(-53.5, -5, 0)),  # 5
    Part.ArcOfCircle(Part.Circle(App.Vector(-53.5, -10, 0), App.Vector(0, 0, 1), 5), math.radians(90), math.radians(197)),  # 6
    Part.ArcOfCircle(Part.Circle(App.Vector(-20, 0, 0), App.Vector(0, 0, 1), 40), math.radians(59), math.radians(163)),  # 7
    Part.ArcOfCircle(Part.Circle(App.Vector(-53.5, 10, 0), App.Vector(0, 0, 1), 5), math.radians(163), math.radians(270)),  # 8
    Part.LineSegment(App.Vector(-53.5, 5, 0), App.Vector(-28.3, 5, 0)),  # 9
    Part.ArcOfCircle(Part.Circle(App.Vector(-28.3, 10, 0), App.Vector(0, 0, 1), 5), math.radians(-90), math.radians(-19)),  # 10
    Part.ArcOfCircle(Part.Circle(App.Vector(0, 0, 0), App.Vector(0, 0, 1), 25), math.radians(94), math.radians(161)),  # 11
    Part.ArcOfCircle(Part.Circle(App.Vector(-1.9, 29.9, 0), App.Vector(0, 0, 1), 5), math.radians(-86), math.radians(59)),  # 12
    Part.Circle(App.Vector(0, 0, 0), App.Vector(0, 0, 1), 22),  # 13
], False)
sketch8.addConstraint([
    Sketcher.Constraint("Tangent", 1, 2, 2, 1),
    Sketcher.Constraint("Tangent", 2, 2, 3, 2),
    Sketcher.Constraint("Tangent", 3, 1, 4, 1),
    Sketcher.Constraint("Tangent", 4, 2, 5, 1),
    Sketcher.Constraint("Tangent", 5, 2, 6, 1),
    Sketcher.Constraint("Tangent", 6, 2, 1, 1),
    Sketcher.Constraint("Tangent", 7, 2, 8, 1),
    Sketcher.Constraint("Tangent", 8, 2, 9, 1),
    Sketcher.Constraint("Tangent", 9, 2, 10, 1),
    Sketcher.Constraint("Tangent", 10, 2, 11, 2),
    Sketcher.Constraint("Tangent", 11, 1, 12, 1),
    Sketcher.Constraint("Tangent", 12, 2, 7, 1),
    Sketcher.Constraint("Horizontal", 5),
    Sketcher.Constraint("Horizontal", 9),
    Sketcher.Constraint("Coincident", 3, 3, -1, 1),
    Sketcher.Constraint("Coincident", 11, 3, -1, 1),
    Sketcher.Constraint("Coincident", 13, 3, -1, 1),
    Sketcher.Constraint("Coincident", 1, 3, 0, 3),
    Sketcher.Constraint("Coincident", 7, 3, 0, 3),
    Sketcher.Constraint("Equal", 2, 4),
    Sketcher.Constraint("Equal", 4, 6),
    Sketcher.Constraint("Equal", 1, 7),
    Sketcher.Constraint("Equal", 6, 8),
    Sketcher.Constraint("Equal", 8, 10),
    Sketcher.Constraint("Equal", 3, 11),
    Sketcher.Constraint("Equal", 10, 12),
    Sketcher.Constraint("Symmetric", 6, 3, 8, 3, -1),
    Sketcher.Constraint("Diameter", 0, 100.0),
    Sketcher.Constraint("Diameter", 13, 44.0),
    Sketcher.Constraint("Radius", 1, 40.0),
    Sketcher.Constraint("Radius", 2, 5.0),
    Sketcher.Constraint("Radius", 3, 25.0),
    Sketcher.Constraint("DistanceX", 0, 3, -1, 1, 20.0),
    Sketcher.Constraint("DistanceY", 4, 3, -1, 1, 10.0),
])
pad8 = doc.addObject("PartDesign::Pad", "Pad007")
body.addObject(pad8)
pad8.Profile = sketch8
pad8.Length = 35
pad8.Reversed = True

doc.recompute()
